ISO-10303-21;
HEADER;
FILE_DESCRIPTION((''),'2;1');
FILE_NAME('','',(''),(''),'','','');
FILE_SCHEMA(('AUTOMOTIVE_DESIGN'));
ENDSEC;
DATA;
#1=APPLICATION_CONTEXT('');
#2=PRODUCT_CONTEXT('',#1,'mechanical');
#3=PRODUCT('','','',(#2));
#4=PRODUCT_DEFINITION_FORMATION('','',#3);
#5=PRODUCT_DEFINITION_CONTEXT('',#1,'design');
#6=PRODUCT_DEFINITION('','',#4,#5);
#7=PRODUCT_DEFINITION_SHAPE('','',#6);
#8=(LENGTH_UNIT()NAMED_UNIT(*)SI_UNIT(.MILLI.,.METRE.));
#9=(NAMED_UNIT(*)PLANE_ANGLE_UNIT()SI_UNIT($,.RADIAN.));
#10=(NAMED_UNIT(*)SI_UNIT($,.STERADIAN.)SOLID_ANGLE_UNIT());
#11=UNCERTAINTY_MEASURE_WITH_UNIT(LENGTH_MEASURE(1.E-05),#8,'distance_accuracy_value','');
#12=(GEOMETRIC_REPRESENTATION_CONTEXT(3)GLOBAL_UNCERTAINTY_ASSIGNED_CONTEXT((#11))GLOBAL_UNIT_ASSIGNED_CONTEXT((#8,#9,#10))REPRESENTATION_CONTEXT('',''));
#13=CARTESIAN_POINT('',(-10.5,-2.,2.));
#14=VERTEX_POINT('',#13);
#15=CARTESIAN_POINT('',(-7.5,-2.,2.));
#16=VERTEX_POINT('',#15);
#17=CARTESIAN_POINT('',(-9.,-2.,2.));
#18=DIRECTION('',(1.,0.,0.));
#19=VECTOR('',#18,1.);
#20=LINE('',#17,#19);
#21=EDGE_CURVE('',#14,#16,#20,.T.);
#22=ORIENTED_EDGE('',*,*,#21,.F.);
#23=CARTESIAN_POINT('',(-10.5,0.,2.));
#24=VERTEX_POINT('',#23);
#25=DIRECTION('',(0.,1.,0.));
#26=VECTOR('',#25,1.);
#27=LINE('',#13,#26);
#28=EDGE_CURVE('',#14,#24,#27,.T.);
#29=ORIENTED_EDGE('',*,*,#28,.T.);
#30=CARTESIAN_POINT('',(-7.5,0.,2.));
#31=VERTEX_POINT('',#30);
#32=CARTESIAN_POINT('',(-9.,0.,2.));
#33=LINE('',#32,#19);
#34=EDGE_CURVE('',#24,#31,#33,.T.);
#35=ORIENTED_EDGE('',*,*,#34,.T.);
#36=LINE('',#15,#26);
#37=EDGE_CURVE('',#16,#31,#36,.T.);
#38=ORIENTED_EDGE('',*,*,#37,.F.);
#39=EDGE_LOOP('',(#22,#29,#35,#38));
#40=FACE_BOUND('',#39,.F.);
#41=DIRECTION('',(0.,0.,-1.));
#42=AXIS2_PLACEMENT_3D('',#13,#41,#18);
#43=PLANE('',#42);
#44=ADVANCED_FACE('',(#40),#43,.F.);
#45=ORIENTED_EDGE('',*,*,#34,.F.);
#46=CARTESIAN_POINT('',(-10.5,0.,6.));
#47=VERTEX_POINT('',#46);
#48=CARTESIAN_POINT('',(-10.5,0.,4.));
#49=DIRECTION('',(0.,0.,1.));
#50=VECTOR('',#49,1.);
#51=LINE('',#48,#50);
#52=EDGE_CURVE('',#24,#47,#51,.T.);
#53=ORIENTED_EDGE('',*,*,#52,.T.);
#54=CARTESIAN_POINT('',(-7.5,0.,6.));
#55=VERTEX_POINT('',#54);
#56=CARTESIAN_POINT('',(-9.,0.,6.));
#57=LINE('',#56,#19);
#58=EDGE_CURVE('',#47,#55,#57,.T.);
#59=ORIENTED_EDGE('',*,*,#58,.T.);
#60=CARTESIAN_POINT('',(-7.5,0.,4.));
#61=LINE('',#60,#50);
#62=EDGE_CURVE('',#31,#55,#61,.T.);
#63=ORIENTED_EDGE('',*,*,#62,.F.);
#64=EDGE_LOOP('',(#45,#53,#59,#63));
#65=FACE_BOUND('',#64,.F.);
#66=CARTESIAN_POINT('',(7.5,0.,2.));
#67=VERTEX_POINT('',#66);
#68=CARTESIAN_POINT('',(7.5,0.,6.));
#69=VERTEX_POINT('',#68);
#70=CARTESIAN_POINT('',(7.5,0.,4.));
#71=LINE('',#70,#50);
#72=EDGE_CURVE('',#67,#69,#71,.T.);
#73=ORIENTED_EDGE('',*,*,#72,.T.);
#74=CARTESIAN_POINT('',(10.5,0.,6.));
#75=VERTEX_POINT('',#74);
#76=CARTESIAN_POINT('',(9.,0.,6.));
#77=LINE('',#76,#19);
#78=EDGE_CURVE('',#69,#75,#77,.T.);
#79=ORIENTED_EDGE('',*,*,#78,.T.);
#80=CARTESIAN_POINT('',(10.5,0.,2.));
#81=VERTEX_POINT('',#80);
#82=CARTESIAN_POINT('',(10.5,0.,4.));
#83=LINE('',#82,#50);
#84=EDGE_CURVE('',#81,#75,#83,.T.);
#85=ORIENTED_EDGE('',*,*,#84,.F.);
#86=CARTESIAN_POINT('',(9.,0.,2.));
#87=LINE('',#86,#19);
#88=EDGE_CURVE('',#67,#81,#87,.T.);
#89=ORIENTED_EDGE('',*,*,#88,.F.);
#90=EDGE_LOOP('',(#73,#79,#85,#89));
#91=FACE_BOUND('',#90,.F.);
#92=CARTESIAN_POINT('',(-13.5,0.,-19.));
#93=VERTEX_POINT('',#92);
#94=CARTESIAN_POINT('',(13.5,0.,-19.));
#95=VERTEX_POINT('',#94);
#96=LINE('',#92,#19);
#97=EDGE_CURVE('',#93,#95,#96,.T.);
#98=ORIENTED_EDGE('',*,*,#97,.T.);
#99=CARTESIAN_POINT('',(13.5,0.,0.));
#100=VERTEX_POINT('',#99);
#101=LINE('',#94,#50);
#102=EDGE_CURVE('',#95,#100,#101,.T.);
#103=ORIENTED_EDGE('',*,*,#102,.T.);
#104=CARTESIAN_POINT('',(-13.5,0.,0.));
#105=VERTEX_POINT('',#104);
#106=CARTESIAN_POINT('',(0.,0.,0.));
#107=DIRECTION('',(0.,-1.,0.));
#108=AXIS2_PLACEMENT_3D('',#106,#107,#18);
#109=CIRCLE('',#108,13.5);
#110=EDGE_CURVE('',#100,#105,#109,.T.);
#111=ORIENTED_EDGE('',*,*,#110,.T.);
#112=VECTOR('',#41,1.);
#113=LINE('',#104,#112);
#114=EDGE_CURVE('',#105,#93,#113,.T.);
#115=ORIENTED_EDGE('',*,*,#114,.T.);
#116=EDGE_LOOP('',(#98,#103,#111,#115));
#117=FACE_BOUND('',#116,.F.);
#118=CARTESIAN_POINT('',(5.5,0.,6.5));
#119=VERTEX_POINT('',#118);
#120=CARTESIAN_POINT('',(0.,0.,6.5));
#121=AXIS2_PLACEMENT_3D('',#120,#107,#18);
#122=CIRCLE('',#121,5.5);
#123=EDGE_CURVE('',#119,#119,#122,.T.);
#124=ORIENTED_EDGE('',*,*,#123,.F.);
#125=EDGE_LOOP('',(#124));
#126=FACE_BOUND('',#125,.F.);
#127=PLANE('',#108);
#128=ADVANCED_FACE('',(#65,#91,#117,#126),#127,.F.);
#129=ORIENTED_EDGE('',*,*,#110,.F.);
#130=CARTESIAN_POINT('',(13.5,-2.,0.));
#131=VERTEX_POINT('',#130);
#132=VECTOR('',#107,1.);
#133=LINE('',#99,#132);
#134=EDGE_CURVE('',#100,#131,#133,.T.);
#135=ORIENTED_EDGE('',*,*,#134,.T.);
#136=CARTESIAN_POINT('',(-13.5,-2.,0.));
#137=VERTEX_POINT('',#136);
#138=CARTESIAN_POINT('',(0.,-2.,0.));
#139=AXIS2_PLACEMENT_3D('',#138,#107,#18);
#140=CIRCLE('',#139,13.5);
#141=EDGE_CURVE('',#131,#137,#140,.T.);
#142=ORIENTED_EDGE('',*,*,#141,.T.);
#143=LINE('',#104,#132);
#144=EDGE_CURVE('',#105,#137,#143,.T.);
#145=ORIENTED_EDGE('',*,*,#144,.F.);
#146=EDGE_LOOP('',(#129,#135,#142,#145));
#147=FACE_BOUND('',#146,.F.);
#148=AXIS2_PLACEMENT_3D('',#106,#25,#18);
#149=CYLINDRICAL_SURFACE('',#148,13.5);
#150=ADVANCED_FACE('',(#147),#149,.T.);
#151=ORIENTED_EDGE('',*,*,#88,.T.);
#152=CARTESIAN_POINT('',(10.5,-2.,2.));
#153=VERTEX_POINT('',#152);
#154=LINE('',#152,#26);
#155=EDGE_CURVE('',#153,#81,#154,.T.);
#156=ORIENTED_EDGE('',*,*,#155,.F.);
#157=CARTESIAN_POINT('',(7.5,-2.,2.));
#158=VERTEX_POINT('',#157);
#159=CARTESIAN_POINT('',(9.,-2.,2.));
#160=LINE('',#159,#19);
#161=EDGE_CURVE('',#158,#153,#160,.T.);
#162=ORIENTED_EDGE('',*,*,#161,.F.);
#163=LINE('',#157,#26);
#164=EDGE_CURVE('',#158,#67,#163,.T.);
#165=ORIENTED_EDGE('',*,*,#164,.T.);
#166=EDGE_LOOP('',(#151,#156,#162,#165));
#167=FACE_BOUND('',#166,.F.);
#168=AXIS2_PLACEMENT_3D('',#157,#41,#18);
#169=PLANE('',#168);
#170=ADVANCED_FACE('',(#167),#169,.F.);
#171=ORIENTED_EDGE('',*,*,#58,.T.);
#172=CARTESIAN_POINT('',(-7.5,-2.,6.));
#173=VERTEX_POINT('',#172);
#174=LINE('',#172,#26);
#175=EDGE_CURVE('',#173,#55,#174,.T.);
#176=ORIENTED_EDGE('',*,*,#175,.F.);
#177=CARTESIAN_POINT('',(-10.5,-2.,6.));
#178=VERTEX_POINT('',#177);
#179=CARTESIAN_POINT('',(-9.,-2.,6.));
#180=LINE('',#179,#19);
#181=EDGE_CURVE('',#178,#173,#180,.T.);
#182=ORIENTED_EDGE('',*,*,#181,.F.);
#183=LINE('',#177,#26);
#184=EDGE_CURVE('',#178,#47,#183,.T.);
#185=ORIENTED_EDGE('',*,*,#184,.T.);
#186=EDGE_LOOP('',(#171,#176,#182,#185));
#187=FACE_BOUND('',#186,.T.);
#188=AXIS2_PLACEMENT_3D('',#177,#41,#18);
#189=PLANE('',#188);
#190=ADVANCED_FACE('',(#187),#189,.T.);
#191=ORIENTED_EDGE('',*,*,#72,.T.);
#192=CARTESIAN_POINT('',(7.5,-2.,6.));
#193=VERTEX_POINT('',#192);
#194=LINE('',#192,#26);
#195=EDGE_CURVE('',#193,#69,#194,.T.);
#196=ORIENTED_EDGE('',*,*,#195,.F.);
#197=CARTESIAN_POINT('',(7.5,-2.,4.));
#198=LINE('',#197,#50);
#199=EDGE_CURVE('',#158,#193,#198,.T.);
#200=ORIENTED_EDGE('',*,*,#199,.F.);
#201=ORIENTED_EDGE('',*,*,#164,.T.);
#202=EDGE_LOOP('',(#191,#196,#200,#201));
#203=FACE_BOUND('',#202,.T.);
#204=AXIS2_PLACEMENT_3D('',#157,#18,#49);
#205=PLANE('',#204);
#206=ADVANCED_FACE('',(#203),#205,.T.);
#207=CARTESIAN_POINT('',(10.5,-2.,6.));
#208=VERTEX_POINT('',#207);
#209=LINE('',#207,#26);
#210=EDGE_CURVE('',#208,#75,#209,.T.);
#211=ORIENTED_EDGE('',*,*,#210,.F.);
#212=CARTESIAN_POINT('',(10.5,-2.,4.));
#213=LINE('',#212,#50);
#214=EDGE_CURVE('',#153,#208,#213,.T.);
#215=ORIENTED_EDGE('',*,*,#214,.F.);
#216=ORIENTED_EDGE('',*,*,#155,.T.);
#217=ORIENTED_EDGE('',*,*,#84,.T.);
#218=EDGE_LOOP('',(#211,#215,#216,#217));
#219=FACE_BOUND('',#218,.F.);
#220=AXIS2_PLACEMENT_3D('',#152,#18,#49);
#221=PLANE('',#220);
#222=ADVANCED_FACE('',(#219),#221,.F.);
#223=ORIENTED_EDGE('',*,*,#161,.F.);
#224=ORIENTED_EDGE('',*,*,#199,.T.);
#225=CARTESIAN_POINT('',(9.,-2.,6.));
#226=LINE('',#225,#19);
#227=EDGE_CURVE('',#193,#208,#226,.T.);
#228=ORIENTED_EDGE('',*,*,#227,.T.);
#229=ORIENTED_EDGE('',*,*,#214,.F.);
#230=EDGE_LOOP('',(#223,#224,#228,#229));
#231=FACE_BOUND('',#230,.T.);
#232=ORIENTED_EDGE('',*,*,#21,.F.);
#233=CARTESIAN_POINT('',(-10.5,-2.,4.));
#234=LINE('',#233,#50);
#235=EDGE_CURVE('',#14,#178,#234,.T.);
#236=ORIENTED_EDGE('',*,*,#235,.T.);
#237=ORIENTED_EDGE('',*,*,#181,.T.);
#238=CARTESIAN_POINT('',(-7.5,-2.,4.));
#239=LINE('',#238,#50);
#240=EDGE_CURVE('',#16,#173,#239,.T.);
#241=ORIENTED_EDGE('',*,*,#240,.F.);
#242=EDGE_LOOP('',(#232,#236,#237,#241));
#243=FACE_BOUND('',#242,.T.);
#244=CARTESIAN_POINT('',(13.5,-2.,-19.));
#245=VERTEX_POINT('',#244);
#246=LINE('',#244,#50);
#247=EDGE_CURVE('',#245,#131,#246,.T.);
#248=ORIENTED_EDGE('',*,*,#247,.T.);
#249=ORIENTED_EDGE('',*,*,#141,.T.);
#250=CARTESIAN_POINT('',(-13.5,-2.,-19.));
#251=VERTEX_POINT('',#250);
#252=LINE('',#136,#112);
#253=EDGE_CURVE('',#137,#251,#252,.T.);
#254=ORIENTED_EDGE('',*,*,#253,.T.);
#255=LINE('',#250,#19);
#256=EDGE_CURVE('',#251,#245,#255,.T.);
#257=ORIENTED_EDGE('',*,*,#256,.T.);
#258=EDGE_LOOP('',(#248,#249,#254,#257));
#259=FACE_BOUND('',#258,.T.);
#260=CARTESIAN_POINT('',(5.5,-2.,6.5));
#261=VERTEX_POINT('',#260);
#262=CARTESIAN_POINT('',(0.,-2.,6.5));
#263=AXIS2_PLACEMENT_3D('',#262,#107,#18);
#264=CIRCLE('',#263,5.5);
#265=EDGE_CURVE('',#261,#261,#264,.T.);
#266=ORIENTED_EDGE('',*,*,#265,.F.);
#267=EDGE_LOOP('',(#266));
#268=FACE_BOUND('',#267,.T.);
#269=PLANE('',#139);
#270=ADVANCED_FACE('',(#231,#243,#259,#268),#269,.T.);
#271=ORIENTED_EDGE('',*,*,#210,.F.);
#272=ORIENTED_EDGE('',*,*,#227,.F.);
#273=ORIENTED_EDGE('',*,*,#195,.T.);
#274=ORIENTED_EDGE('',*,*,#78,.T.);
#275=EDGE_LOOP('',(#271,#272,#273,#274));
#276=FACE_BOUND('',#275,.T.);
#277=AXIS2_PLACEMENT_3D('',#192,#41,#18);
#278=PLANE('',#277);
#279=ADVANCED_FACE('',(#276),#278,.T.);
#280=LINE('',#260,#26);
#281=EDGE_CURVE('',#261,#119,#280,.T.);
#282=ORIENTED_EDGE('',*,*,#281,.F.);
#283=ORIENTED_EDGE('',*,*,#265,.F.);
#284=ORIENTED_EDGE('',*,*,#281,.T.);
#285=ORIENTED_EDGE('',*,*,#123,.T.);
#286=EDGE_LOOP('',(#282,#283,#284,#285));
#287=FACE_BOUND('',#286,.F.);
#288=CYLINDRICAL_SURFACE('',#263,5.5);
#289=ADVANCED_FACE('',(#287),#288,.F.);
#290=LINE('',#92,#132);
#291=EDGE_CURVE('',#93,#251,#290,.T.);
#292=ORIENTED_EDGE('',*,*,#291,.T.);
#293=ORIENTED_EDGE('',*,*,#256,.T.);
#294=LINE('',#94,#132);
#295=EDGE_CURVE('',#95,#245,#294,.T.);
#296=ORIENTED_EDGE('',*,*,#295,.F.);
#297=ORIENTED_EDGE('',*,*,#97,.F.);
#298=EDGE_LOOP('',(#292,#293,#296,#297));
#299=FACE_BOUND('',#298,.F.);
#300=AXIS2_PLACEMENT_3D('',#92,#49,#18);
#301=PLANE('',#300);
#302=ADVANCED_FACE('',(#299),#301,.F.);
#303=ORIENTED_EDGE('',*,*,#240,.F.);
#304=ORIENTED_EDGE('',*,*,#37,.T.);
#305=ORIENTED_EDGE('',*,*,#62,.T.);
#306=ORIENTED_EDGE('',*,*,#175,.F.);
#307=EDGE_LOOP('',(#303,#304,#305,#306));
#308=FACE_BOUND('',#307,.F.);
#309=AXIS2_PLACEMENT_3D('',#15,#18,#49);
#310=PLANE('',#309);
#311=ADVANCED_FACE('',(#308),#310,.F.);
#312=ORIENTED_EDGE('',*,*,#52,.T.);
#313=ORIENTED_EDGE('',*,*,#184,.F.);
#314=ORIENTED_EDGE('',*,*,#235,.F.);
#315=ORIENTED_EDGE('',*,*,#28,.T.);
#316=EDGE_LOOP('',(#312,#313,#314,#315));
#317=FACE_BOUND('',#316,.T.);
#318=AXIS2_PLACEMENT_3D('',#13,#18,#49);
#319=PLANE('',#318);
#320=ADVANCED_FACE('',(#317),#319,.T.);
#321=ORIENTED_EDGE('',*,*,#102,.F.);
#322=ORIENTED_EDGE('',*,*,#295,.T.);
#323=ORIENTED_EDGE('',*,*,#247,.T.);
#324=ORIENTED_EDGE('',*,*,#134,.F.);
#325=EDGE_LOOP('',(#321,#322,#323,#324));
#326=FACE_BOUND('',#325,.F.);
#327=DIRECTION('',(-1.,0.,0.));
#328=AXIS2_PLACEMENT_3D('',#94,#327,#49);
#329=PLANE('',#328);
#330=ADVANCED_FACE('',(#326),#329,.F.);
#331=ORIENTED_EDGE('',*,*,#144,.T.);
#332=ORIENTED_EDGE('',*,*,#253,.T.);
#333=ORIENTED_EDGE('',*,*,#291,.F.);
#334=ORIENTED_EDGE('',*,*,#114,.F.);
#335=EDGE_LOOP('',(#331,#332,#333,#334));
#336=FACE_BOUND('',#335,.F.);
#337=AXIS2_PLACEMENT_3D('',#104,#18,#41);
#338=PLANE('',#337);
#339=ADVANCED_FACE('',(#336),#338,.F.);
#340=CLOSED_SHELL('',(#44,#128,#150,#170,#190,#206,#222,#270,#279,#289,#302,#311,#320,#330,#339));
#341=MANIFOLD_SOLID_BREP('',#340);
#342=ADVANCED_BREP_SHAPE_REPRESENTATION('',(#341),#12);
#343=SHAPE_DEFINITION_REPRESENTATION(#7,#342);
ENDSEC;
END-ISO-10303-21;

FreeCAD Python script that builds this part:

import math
import FreeCAD as App
import Part
import Sketcher
from FreeCAD import Vector


def add_polygon(sketch, points):
    """Adds a closed chain of lines whose ends are joined by coincident constraints."""
    first, n = sketch.GeometryCount, len(points)
    for a, b in zip(points, points[1:] + points[:1]):
        sketch.addGeometry(Part.LineSegment(App.Vector(*a, 0), App.Vector(*b, 0)), False)
    for i in range(n):
        sketch.addConstraint(Sketcher.Constraint("Coincident", first + i, 2, first + (i + 1) % n, 1))

doc = App.newDocument("Part")
params = doc.addObject("Spreadsheet::Sheet", "Params")
for row, (alias, value) in enumerate([
    ("sketch1_radius", "13.5 mm"),
    ("sketch1_height", "19 mm"),
    ("pad1_length", "2 mm"),
    ("sketch2_diameter", "11 mm"),
    ("sketch2_width", "3 mm"),
    ("sketch2_height", "4 mm"),
    ("pocket1_length", "2 mm"),
], start=1):
    params.set(f"A{row}", alias)
    params.set(f"B{row}", "=" + value)
    params.setAlias(f"B{row}", alias)

body = doc.addObject("PartDesign::Body", "Body")

sketch1 = body.newObject("Sketcher::SketchObject", "Sketch")
sketch1.AttachmentSupport = (doc.getObject("XZ_Plane"), [""])
sketch1.MapMode = "FlatFace"
sketch1.addGeometry([
    Part.ArcOfCircle(Part.Circle(Vector(0, 0, 0), Vector(0, 0, 1), 14), math.radians(0), math.radians(180)),
    Part.LineSegment(Vector(-14, 0, 0), Vector(-14, -19, 0)),
    Part.LineSegment(Vector(-14, -19, 0), Vector(14, -19, 0)),
    Part.LineSegment(Vector(14, -19, 0), Vector(14, 0, 0)),
], False)
sketch1.addConstraint([
    Sketcher.Constraint("Tangent", 0, 2, 1, 1),
    Sketcher.Constraint("Coincident", 1, 2, 2, 1),
    Sketcher.Constraint("Coincident", 2, 2, 3, 1),
    Sketcher.Constraint("Tangent", 3, 2, 0, 1),
    Sketcher.Constraint("Vertical", 1),
    Sketcher.Constraint("Horizontal", 2),
    Sketcher.Constraint("Vertical", 3),
    Sketcher.Constraint("Coincident", 0, 3, -1, 1),
    Sketcher.Constraint("Radius", 0, 13.5),
    Sketcher.Constraint("DistanceY", 1, 2, 1, 1, 19.0),
])
sketch1.setExpression("Constraints[8]", "Params.sketch1_radius")
sketch1.setExpression("Constraints[9]", "Params.sketch1_height")
pad1 = body.newObject("PartDesign::Pad", "Pad")
pad1.Profile = sketch1
pad1.setExpression("Length", "Params.pad1_length")

sketch2 = body.newObject("Sketcher::SketchObject", "Sketch001")
sketch2.AttachmentSupport = (doc.getObject("XZ_Plane"), [""])
sketch2.MapMode = "FlatFace"
sketch2.AttachmentOffset = App.Placement(Vector(0, 0, 2), App.Rotation())
sketch2.addGeometry(Part.Circle(Vector(0, 6.5, 0), Vector(0, 0, 1), 5.5), False)
add_polygon(sketch2, [(-10.5, 6), (-10.5, 2), (-7.5, 2), (-7.5, 6)])
add_polygon(sketch2, [(7.5, 6), (7.5, 2), (10.5, 2), (10.5, 6)])
sketch2.addConstraint([
    Sketcher.Constraint("Vertical", 1),
    Sketcher.Constraint("Horizontal", 2),
    Sketcher.Constraint("Vertical", 3),
    Sketcher.Constraint("Horizontal", 4),
    Sketcher.Constraint("Vertical", 5),
    Sketcher.Constraint("Horizontal", 6),
    Sketcher.Constraint("Vertical", 7),
    Sketcher.Constraint("Horizontal", 8),
    Sketcher.Constraint("Symmetric", 2, 2, 5, 2, -2),
    Sketcher.Constraint("Symmetric", 4, 2, 7, 2, -2),
    Sketcher.Constraint("PointOnObject", 0, 3, -2),
    Sketcher.Constraint("Diameter", 0, 11.0),
    Sketcher.Constraint("DistanceX", 2, 1, 2, 2, 3.0),
    Sketcher.Constraint("DistanceY", 1, 2, 1, 1, 4.0),
    Sketcher.Constraint("DistanceY", -1, 1, 1, 2, 2.0),
    Sketcher.Constraint("DistanceX", 2, 2, 5, 2, 15.0),
    Sketcher.Constraint("DistanceY", -1, 1, 0, 3, 6.5),
])
sketch2.setExpression("Constraints[19]", "Params.sketch2_diameter")
sketch2.setExpression("Constraints[20]", "Params.sketch2_width")
sketch2.setExpression("Constraints[21]", "Params.sketch2_height")
pocket1 = body.newObject("PartDesign::Pocket", "Pocket")
pocket1.Profile = sketch2
pocket1.setExpression("Length", "Params.pocket1_length")

doc.recompute()
